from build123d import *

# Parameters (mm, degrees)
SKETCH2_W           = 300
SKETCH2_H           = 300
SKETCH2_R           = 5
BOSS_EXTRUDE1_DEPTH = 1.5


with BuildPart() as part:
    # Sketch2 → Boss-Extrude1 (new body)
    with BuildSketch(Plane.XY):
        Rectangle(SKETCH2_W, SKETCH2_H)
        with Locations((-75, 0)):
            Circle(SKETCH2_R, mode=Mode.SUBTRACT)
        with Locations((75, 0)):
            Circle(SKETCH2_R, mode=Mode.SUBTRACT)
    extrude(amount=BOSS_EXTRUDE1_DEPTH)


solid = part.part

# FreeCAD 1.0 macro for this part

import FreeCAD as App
import Part
import Sketcher
Q = App.Units.Quantity

doc = App.newDocument("Part")
body = doc.addObject("PartDesign::Body", "Body")

sketch1 = doc.addObject("Sketcher::SketchObject", "Sketch")
body.addObject(sketch1)
sketch1.AttachmentSupport = (doc.XY_Plane, [""])
sketch1.MapMode = "FlatFace"
sketch1.addGeometry(Part.LineSegment(App.Vector(-150, 150, 0), App.Vector(-150, -150, 0)), False)
sketch1.addGeometry(Part.LineSegment(App.Vector(-150, -150, 0), App.Vector(150, -150, 0)), False)
sketch1.addGeometry(Part.LineSegment(App.Vector(150, -150, 0), App.Vector(150, 150, 0)), False)
sketch1.addGeometry(Part.LineSegment(App.Vector(150, 150, 0), App.Vector(-150, 150, 0)), False)
sketch1.addGeometry(Part.Circle(App.Vector(-75, 0, 0), App.Vector(0, 0, 1), 5), False)
sketch1.addGeometry(Part.Circle(App.Vector(75, 0, 0), App.Vector(0, 0, 1), 5), False)
sketch1.addConstraint(Sketcher.Constraint("Coincident", 0, 2, 1, 1))
sketch1.addConstraint(Sketcher.Constraint("Coincident", 1, 2, 2, 1))
sketch1.addConstraint(Sketcher.Constraint("Coincident", 2, 2, 3, 1))
sketch1.addConstraint(Sketcher.Constraint("Coincident", 3, 2, 0, 1))
sketch1.addConstraint(Sketcher.Constraint("Vertical", 0))
sketch1.addConstraint(Sketcher.Constraint("Horizontal", 1))
sketch1.addConstraint(Sketcher.Constraint("Vertical", 2))
sketch1.addConstraint(Sketcher.Constraint("Horizontal", 3))
sketch1.addConstraint(Sketcher.Constraint("Equal", 4, 5))
sketch1.addConstraint(Sketcher.Constraint("Symmetric", 4, 3, 5, 3, -1, 1))
sketch1.addConstraint(Sketcher.Constraint("Symmetric", 0, 2, 2, 2, -1, 1))
sketch1.addConstraint(Sketcher.Constraint("PointOnObject", 4, 3, -1))
sketch1.addConstraint(Sketcher.Constraint("Equal", 3, 0))
sketch1.addConstraint(Sketcher.Constraint("Diameter", 4, Q("10 mm")))
sketch1.addConstraint(Sketcher.Constraint("DistanceX", 1, 1, 1, 2, Q("300 mm")))
sketch1.addConstraint(Sketcher.Constraint("DistanceX", 4, 3, -1, 1, Q("75 mm")))
pad1 = doc.addObject("PartDesign::Pad", "Pad")
body.addObject(pad1)
pad1.Profile = sketch1
pad1.Length = 1.5

doc.recompute()
